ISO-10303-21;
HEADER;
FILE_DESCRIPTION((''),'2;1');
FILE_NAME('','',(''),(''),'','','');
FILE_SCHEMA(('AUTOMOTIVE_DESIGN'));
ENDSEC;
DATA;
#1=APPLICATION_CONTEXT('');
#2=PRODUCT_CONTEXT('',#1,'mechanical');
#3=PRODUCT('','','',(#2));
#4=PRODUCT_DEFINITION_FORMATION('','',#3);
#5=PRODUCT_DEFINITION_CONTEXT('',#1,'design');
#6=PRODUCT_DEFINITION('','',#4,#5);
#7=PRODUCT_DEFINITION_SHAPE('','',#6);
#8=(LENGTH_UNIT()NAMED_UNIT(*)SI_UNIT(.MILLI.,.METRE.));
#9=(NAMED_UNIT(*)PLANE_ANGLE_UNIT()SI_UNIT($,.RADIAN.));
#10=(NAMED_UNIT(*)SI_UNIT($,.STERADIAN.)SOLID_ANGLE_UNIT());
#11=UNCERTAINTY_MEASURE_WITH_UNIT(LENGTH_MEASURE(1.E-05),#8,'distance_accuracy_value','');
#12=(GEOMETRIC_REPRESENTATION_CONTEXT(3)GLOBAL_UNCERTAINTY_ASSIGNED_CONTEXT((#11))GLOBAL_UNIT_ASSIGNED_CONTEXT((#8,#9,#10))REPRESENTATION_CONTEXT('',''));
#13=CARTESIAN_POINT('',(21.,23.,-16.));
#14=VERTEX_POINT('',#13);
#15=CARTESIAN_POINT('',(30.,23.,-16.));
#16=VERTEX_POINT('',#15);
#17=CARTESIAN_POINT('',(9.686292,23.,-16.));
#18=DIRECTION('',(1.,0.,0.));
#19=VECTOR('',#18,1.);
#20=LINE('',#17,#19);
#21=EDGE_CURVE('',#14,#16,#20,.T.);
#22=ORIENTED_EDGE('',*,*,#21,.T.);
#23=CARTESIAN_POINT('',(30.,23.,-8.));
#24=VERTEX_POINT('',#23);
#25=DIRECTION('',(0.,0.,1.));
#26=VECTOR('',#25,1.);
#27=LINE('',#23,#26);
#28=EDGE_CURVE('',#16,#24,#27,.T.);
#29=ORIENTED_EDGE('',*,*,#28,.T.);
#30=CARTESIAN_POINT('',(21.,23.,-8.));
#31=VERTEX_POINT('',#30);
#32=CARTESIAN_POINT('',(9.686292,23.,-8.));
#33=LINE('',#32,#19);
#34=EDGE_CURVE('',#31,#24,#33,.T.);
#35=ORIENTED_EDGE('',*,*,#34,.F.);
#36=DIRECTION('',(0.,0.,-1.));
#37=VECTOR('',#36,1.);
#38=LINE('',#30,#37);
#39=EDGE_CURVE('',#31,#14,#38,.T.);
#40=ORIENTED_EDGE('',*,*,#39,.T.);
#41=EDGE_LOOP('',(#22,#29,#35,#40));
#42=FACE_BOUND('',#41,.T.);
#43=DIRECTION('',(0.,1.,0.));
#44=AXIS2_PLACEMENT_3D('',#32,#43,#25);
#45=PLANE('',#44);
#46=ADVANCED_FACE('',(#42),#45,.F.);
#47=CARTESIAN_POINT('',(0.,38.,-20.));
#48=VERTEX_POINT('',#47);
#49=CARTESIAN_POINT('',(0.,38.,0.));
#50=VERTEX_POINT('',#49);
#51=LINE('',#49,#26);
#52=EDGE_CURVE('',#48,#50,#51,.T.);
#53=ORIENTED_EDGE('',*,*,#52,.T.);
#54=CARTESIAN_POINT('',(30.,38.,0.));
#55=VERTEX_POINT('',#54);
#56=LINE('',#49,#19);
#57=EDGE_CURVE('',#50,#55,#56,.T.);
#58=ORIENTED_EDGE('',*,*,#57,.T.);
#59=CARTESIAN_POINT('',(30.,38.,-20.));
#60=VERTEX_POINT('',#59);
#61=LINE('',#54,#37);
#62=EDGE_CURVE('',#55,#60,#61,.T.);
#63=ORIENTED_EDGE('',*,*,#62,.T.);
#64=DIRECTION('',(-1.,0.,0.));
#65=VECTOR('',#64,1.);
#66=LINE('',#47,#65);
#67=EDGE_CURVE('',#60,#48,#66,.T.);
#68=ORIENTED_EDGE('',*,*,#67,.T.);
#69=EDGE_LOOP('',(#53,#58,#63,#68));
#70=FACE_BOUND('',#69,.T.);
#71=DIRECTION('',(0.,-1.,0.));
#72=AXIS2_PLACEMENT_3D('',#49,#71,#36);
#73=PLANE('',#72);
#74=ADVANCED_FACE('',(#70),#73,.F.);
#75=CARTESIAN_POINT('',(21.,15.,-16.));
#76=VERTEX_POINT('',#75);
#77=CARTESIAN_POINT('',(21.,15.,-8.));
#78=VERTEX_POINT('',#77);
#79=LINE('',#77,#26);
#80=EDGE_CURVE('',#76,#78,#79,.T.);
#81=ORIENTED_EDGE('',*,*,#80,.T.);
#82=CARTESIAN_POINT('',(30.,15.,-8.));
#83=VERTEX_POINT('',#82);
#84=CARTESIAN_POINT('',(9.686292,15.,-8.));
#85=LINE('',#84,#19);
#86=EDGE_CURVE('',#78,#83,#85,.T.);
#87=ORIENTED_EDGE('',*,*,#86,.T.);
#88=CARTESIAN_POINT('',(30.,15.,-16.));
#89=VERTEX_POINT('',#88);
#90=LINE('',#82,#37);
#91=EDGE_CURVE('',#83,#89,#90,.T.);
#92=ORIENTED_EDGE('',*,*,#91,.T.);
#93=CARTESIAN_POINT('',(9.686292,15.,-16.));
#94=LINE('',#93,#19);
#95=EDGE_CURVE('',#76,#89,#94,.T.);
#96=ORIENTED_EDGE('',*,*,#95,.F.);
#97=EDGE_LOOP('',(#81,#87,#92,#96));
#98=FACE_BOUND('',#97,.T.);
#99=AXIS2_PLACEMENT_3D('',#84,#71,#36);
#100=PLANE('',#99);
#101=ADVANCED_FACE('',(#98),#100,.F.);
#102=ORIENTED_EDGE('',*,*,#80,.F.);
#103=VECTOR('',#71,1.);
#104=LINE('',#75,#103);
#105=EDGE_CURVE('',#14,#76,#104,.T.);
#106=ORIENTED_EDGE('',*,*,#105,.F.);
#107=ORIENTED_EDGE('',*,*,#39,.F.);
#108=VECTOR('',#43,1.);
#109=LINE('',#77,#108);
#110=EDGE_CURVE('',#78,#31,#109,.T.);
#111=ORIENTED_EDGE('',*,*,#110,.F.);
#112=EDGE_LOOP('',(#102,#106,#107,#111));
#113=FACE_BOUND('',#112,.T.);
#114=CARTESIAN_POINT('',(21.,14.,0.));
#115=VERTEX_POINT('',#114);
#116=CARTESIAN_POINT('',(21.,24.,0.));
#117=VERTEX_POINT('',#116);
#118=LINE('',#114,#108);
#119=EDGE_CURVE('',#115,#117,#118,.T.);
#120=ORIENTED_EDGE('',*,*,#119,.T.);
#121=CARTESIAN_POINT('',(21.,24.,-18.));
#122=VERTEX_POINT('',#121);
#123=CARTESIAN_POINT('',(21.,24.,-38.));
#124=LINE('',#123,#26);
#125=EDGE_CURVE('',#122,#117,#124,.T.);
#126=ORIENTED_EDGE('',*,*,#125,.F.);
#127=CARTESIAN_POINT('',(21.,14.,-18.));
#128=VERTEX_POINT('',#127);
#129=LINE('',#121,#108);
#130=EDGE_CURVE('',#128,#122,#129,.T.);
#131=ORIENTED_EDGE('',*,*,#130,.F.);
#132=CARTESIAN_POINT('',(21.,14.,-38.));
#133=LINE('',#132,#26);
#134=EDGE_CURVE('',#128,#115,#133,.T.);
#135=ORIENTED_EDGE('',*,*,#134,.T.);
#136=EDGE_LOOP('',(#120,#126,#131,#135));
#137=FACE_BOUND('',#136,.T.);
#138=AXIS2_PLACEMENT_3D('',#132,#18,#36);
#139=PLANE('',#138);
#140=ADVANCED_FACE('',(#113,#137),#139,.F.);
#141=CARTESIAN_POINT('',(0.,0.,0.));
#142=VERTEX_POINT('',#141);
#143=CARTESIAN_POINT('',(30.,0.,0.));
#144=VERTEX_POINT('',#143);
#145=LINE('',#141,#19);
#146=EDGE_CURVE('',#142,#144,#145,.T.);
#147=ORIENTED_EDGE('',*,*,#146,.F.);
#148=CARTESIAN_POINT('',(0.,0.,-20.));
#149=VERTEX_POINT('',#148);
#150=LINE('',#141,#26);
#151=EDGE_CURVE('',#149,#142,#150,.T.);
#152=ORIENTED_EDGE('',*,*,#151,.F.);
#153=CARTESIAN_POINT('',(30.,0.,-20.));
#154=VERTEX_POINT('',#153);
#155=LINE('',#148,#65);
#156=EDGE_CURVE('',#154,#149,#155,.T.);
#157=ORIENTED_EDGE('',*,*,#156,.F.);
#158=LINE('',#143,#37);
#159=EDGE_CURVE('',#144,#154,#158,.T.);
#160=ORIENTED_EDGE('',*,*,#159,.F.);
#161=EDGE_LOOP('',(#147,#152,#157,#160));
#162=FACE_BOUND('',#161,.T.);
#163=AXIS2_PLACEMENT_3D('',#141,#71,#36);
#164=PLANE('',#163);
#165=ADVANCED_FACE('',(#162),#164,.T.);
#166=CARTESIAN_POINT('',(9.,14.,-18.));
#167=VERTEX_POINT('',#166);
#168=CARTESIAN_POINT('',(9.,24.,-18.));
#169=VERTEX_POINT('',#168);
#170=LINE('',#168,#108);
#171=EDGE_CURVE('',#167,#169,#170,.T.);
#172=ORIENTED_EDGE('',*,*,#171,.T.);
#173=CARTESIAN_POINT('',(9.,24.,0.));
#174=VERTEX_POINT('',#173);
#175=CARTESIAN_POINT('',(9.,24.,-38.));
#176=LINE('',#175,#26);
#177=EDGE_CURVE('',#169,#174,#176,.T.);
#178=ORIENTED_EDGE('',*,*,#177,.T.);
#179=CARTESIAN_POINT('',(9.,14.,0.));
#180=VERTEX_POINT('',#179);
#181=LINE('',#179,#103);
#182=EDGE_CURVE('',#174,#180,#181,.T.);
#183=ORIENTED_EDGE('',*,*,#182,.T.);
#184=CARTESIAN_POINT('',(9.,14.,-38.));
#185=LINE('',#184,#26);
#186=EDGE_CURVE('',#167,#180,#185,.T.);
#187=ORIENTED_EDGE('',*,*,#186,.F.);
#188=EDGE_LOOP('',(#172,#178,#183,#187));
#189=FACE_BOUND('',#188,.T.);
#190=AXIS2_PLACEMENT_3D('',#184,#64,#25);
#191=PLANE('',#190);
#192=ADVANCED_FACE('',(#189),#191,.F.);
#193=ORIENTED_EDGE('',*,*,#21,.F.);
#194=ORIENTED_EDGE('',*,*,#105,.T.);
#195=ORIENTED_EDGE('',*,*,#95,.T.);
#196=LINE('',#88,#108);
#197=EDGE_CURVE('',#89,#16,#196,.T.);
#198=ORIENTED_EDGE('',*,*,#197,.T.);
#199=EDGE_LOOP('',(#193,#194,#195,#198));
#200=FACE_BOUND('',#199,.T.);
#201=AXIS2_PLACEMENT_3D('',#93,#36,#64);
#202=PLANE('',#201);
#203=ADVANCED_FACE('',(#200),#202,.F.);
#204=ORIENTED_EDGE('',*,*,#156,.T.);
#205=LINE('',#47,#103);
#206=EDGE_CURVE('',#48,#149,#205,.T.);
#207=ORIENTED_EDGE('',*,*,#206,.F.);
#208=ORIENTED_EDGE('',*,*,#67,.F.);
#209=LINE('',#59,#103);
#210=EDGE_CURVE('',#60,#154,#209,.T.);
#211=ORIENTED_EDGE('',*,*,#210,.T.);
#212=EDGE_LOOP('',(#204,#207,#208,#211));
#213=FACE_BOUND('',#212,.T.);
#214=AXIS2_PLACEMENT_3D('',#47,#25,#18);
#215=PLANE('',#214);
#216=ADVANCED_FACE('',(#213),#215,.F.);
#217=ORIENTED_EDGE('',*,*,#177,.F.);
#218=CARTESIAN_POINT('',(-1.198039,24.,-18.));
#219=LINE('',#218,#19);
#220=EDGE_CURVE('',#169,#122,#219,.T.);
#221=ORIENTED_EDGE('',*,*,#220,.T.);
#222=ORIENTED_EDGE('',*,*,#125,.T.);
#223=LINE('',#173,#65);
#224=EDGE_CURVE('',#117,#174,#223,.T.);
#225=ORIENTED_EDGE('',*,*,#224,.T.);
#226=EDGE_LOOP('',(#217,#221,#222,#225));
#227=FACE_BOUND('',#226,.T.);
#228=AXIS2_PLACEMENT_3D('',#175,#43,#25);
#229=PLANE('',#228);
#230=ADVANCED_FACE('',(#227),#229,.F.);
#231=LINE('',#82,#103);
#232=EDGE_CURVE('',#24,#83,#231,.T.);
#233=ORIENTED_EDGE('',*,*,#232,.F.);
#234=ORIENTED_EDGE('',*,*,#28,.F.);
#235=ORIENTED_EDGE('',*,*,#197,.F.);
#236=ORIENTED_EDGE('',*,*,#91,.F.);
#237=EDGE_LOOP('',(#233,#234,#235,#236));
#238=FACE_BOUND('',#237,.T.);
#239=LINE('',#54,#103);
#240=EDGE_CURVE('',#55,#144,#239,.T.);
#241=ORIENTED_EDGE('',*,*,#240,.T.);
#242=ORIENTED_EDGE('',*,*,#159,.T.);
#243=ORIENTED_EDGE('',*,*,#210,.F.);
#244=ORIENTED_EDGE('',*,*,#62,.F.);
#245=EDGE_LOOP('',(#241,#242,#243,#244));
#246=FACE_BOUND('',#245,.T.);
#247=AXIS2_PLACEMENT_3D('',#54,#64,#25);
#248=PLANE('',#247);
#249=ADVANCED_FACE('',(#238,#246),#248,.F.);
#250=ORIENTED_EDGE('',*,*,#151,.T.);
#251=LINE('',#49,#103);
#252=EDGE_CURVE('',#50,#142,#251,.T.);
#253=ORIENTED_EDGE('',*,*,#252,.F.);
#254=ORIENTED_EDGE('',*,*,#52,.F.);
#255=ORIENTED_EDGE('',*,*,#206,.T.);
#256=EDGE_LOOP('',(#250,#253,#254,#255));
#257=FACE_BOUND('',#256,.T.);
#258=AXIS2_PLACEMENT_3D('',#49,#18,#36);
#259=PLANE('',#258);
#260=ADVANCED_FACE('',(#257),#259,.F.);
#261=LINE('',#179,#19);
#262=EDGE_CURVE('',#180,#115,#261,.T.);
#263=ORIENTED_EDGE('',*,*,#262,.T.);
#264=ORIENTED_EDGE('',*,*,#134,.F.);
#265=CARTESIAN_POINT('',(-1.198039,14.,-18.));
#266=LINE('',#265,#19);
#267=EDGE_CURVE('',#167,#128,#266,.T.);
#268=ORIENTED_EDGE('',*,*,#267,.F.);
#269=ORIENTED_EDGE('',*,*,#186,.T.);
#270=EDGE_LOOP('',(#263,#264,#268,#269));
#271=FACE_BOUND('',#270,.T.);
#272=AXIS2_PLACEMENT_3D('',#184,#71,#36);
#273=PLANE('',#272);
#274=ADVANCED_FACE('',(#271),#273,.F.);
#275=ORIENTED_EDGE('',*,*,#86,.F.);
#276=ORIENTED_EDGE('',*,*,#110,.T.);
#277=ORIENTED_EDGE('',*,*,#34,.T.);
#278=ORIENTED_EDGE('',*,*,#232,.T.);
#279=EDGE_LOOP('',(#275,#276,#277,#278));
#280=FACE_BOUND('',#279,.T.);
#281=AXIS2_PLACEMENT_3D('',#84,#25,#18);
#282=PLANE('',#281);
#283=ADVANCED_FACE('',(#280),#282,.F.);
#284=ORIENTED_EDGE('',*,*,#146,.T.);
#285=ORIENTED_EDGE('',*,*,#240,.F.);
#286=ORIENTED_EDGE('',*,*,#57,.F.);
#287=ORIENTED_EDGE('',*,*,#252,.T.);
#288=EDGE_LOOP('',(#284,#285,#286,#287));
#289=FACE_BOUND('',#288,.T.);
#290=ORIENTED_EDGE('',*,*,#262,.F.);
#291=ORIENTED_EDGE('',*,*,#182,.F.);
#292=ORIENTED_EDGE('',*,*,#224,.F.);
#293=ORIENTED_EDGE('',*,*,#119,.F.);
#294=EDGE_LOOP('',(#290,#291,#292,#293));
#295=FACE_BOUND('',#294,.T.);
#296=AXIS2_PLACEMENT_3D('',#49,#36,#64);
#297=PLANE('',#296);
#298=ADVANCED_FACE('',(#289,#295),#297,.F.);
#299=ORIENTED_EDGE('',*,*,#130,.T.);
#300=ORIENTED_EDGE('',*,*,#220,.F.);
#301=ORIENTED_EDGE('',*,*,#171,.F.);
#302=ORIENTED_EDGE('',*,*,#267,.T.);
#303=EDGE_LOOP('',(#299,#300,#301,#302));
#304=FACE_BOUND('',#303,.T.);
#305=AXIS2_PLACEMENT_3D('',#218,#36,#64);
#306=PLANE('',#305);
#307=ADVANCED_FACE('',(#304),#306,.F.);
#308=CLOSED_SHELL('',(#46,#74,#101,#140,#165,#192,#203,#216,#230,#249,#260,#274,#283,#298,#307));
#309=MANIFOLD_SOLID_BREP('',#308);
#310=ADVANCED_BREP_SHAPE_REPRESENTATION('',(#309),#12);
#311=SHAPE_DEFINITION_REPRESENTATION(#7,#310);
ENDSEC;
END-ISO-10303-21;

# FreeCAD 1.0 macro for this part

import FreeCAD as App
import Part
import Sketcher

V = App.Vector
Q = App.Units.Quantity

doc = App.newDocument("Part")
body = doc.addObject("PartDesign::Body", "Body")

# Sketch on XZ plane
sketch1 = body.newObject("Sketcher::SketchObject", "Sketch")
sketch1.AttachmentSupport = (doc.getObject("XZ_Plane"), [""])
sketch1.MapMode = "FlatFace"
sketch1.addGeometry(Part.LineSegment(V(0, -20, 0), V(0, 0, 0)), False)
sketch1.addGeometry(Part.LineSegment(V(0, 0, 0), V(30, 0, 0)), False)
sketch1.addGeometry(Part.LineSegment(V(30, 0, 0), V(30, -20, 0)), False)
sketch1.addGeometry(Part.LineSegment(V(30, -20, 0), V(0, -20, 0)), False)
sketch1.addConstraint(Sketcher.Constraint("Coincident", 0, 2, 1, 1))
sketch1.addConstraint(Sketcher.Constraint("Coincident", 1, 2, 2, 1))
sketch1.addConstraint(Sketcher.Constraint("Coincident", 2, 2, 3, 1))
sketch1.addConstraint(Sketcher.Constraint("Coincident", 3, 2, 0, 1))
sketch1.addConstraint(Sketcher.Constraint("Vertical", 0))
sketch1.addConstraint(Sketcher.Constraint("Horizontal", 1))
sketch1.addConstraint(Sketcher.Constraint("Vertical", 2))
sketch1.addConstraint(Sketcher.Constraint("Horizontal", 3))
sketch1.addConstraint(Sketcher.Constraint("Coincident", 0, 2, -1, 1))
sketch1.addConstraint(Sketcher.Constraint("DistanceX", 1, 1, 1, 2, Q("30 mm")))
sketch1.addConstraint(Sketcher.Constraint("DistanceY", 0, 1, 0, 2, Q("20 mm")))
pad1 = body.newObject("PartDesign::Pad", "Pad")
pad1.Profile = sketch1
pad1.Length = 38
pad1.Reversed = True

# Sketch on XY plane
sketch2 = body.newObject("Sketcher::SketchObject", "Sketch001")
sketch2.AttachmentSupport = (doc.getObject("XY_Plane"), [""])
sketch2.MapMode = "FlatFace"
sketch2.addGeometry(Part.LineSegment(V(9, 24, 0), V(9, 14, 0)), False)
sketch2.addGeometry(Part.LineSegment(V(9, 14, 0), V(21, 14, 0)), False)
sketch2.addGeometry(Part.LineSegment(V(21, 14, 0), V(21, 24, 0)), False)
sketch2.addGeometry(Part.LineSegment(V(21, 24, 0), V(9, 24, 0)), False)
sketch2.addConstraint(Sketcher.Constraint("Coincident", 0, 2, 1, 1))
sketch2.addConstraint(Sketcher.Constraint("Coincident", 1, 2, 2, 1))
sketch2.addConstraint(Sketcher.Constraint("Coincident", 2, 2, 3, 1))
sketch2.addConstraint(Sketcher.Constraint("Coincident", 3, 2, 0, 1))
sketch2.addConstraint(Sketcher.Constraint("Vertical", 0))
sketch2.addConstraint(Sketcher.Constraint("Horizontal", 1))
sketch2.addConstraint(Sketcher.Constraint("Vertical", 2))
sketch2.addConstraint(Sketcher.Constraint("Horizontal", 3))
sketch2.addConstraint(Sketcher.Constraint("DistanceX", 1, 1, 1, 2, Q("12 mm")))
sketch2.addConstraint(Sketcher.Constraint("DistanceY", 0, 2, 0, 1, Q("10 mm")))
sketch2.addConstraint(Sketcher.Constraint("DistanceX", -1, 1, 0, 2, Q("9 mm")))
sketch2.addConstraint(Sketcher.Constraint("DistanceY", -1, 1, 0, 2, Q("14 mm")))
pocket1 = body.newObject("PartDesign::Pocket", "Pocket")
pocket1.Profile = sketch2
pocket1.Length = 38

# Sketch on YZ plane
sketch3 = body.newObject("Sketcher::SketchObject", "Sketch002")
sketch3.AttachmentSupport = (doc.getObject("YZ_Plane"), [""])
sketch3.MapMode = "FlatFace"
sketch3.AttachmentOffset = App.Placement(V(0, 0, 30), App.Rotation())
sketch3.addGeometry(Part.LineSegment(V(23, -8, 0), V(15, -8, 0)), False)
sketch3.addGeometry(Part.LineSegment(V(15, -8, 0), V(15, -16, 0)), False)
sketch3.addGeometry(Part.LineSegment(V(15, -16, 0), V(23, -16, 0)), False)
sketch3.addGeometry(Part.LineSegment(V(23, -16, 0), V(23, -8, 0)), False)
sketch3.addConstraint(Sketcher.Constraint("Coincident", 0, 2, 1, 1))
sketch3.addConstraint(Sketcher.Constraint("Coincident", 1, 2, 2, 1))
sketch3.addConstraint(Sketcher.Constraint("Coincident", 2, 2, 3, 1))
sketch3.addConstraint(Sketcher.Constraint("Coincident", 3, 2, 0, 1))
sketch3.addConstraint(Sketcher.Constraint("Horizontal", 0))
sketch3.addConstraint(Sketcher.Constraint("Vertical", 1))
sketch3.addConstraint(Sketcher.Constraint("Horizontal", 2))
sketch3.addConstraint(Sketcher.Constraint("Vertical", 3))
sketch3.addConstraint(Sketcher.Constraint("Equal", 2, 1))
sketch3.addConstraint(Sketcher.Constraint("DistanceX", 0, 2, 0, 1, Q("8 mm")))
sketch3.addConstraint(Sketcher.Constraint("DistanceX", -1, 1, 0, 2, Q("15 mm")))
sketch3.addConstraint(Sketcher.Constraint("DistanceY", 0, 2, -1, 1, Q("8 mm")))
pocket2 = body.newObject("PartDesign::Pocket", "Pocket001")
pocket2.Profile = sketch3
pocket2.Length = 9

# Sketch on YZ plane
sketch4 = body.newObject("Sketcher::SketchObject", "Sketch003")
sketch4.AttachmentSupport = (doc.getObject("YZ_Plane"), [""])
sketch4.MapMode = "FlatFace"
sketch4.AttachmentOffset = App.Placement(V(0, 0, 21), App.Rotation())
sketch4.addGeometry(Part.LineSegment(V(24, -20, 0), V(14, -20, 0)), False)
sketch4.addGeometry(Part.LineSegment(V(14, -20, 0), V(14, -18, 0)), False)
sketch4.addGeometry(Part.LineSegment(V(14, -18, 0), V(24, -18, 0)), False)
sketch4.addGeometry(Part.LineSegment(V(24, -18, 0), V(24, -20, 0)), False)
sketch4.addConstraint(Sketcher.Constraint("Coincident", 0, 2, 1, 1))
sketch4.addConstraint(Sketcher.Constraint("Coincident", 1, 2, 2, 1))
sketch4.addConstraint(Sketcher.Constraint("Coincident", 2, 2, 3, 1))
sketch4.addConstraint(Sketcher.Constraint("Coincident", 3, 2, 0, 1))
sketch4.addConstraint(Sketcher.Constraint("Horizontal", 0))
sketch4.addConstraint(Sketcher.Constraint("Vertical", 1))
sketch4.addConstraint(Sketcher.Constraint("Horizontal", 2))
sketch4.addConstraint(Sketcher.Constraint("Vertical", 3))
sketch4.addConstraint(Sketcher.Constraint("DistanceX", 0, 2, 0, 1, Q("10 mm")))
sketch4.addConstraint(Sketcher.Constraint("DistanceY", 1, 1, 1, 2, Q("2 mm")))
sketch4.addConstraint(Sketcher.Constraint("DistanceX", -1, 1, 0, 2, Q("14 mm")))
sketch4.addConstraint(Sketcher.Constraint("DistanceY", 0, 2, -1, 1, Q("20 mm")))
pad2 = body.newObject("PartDesign::Pad", "Pad001")
pad2.Profile = sketch4
pad2.Length = 12
pad2.Reversed = True

doc.recompute()
